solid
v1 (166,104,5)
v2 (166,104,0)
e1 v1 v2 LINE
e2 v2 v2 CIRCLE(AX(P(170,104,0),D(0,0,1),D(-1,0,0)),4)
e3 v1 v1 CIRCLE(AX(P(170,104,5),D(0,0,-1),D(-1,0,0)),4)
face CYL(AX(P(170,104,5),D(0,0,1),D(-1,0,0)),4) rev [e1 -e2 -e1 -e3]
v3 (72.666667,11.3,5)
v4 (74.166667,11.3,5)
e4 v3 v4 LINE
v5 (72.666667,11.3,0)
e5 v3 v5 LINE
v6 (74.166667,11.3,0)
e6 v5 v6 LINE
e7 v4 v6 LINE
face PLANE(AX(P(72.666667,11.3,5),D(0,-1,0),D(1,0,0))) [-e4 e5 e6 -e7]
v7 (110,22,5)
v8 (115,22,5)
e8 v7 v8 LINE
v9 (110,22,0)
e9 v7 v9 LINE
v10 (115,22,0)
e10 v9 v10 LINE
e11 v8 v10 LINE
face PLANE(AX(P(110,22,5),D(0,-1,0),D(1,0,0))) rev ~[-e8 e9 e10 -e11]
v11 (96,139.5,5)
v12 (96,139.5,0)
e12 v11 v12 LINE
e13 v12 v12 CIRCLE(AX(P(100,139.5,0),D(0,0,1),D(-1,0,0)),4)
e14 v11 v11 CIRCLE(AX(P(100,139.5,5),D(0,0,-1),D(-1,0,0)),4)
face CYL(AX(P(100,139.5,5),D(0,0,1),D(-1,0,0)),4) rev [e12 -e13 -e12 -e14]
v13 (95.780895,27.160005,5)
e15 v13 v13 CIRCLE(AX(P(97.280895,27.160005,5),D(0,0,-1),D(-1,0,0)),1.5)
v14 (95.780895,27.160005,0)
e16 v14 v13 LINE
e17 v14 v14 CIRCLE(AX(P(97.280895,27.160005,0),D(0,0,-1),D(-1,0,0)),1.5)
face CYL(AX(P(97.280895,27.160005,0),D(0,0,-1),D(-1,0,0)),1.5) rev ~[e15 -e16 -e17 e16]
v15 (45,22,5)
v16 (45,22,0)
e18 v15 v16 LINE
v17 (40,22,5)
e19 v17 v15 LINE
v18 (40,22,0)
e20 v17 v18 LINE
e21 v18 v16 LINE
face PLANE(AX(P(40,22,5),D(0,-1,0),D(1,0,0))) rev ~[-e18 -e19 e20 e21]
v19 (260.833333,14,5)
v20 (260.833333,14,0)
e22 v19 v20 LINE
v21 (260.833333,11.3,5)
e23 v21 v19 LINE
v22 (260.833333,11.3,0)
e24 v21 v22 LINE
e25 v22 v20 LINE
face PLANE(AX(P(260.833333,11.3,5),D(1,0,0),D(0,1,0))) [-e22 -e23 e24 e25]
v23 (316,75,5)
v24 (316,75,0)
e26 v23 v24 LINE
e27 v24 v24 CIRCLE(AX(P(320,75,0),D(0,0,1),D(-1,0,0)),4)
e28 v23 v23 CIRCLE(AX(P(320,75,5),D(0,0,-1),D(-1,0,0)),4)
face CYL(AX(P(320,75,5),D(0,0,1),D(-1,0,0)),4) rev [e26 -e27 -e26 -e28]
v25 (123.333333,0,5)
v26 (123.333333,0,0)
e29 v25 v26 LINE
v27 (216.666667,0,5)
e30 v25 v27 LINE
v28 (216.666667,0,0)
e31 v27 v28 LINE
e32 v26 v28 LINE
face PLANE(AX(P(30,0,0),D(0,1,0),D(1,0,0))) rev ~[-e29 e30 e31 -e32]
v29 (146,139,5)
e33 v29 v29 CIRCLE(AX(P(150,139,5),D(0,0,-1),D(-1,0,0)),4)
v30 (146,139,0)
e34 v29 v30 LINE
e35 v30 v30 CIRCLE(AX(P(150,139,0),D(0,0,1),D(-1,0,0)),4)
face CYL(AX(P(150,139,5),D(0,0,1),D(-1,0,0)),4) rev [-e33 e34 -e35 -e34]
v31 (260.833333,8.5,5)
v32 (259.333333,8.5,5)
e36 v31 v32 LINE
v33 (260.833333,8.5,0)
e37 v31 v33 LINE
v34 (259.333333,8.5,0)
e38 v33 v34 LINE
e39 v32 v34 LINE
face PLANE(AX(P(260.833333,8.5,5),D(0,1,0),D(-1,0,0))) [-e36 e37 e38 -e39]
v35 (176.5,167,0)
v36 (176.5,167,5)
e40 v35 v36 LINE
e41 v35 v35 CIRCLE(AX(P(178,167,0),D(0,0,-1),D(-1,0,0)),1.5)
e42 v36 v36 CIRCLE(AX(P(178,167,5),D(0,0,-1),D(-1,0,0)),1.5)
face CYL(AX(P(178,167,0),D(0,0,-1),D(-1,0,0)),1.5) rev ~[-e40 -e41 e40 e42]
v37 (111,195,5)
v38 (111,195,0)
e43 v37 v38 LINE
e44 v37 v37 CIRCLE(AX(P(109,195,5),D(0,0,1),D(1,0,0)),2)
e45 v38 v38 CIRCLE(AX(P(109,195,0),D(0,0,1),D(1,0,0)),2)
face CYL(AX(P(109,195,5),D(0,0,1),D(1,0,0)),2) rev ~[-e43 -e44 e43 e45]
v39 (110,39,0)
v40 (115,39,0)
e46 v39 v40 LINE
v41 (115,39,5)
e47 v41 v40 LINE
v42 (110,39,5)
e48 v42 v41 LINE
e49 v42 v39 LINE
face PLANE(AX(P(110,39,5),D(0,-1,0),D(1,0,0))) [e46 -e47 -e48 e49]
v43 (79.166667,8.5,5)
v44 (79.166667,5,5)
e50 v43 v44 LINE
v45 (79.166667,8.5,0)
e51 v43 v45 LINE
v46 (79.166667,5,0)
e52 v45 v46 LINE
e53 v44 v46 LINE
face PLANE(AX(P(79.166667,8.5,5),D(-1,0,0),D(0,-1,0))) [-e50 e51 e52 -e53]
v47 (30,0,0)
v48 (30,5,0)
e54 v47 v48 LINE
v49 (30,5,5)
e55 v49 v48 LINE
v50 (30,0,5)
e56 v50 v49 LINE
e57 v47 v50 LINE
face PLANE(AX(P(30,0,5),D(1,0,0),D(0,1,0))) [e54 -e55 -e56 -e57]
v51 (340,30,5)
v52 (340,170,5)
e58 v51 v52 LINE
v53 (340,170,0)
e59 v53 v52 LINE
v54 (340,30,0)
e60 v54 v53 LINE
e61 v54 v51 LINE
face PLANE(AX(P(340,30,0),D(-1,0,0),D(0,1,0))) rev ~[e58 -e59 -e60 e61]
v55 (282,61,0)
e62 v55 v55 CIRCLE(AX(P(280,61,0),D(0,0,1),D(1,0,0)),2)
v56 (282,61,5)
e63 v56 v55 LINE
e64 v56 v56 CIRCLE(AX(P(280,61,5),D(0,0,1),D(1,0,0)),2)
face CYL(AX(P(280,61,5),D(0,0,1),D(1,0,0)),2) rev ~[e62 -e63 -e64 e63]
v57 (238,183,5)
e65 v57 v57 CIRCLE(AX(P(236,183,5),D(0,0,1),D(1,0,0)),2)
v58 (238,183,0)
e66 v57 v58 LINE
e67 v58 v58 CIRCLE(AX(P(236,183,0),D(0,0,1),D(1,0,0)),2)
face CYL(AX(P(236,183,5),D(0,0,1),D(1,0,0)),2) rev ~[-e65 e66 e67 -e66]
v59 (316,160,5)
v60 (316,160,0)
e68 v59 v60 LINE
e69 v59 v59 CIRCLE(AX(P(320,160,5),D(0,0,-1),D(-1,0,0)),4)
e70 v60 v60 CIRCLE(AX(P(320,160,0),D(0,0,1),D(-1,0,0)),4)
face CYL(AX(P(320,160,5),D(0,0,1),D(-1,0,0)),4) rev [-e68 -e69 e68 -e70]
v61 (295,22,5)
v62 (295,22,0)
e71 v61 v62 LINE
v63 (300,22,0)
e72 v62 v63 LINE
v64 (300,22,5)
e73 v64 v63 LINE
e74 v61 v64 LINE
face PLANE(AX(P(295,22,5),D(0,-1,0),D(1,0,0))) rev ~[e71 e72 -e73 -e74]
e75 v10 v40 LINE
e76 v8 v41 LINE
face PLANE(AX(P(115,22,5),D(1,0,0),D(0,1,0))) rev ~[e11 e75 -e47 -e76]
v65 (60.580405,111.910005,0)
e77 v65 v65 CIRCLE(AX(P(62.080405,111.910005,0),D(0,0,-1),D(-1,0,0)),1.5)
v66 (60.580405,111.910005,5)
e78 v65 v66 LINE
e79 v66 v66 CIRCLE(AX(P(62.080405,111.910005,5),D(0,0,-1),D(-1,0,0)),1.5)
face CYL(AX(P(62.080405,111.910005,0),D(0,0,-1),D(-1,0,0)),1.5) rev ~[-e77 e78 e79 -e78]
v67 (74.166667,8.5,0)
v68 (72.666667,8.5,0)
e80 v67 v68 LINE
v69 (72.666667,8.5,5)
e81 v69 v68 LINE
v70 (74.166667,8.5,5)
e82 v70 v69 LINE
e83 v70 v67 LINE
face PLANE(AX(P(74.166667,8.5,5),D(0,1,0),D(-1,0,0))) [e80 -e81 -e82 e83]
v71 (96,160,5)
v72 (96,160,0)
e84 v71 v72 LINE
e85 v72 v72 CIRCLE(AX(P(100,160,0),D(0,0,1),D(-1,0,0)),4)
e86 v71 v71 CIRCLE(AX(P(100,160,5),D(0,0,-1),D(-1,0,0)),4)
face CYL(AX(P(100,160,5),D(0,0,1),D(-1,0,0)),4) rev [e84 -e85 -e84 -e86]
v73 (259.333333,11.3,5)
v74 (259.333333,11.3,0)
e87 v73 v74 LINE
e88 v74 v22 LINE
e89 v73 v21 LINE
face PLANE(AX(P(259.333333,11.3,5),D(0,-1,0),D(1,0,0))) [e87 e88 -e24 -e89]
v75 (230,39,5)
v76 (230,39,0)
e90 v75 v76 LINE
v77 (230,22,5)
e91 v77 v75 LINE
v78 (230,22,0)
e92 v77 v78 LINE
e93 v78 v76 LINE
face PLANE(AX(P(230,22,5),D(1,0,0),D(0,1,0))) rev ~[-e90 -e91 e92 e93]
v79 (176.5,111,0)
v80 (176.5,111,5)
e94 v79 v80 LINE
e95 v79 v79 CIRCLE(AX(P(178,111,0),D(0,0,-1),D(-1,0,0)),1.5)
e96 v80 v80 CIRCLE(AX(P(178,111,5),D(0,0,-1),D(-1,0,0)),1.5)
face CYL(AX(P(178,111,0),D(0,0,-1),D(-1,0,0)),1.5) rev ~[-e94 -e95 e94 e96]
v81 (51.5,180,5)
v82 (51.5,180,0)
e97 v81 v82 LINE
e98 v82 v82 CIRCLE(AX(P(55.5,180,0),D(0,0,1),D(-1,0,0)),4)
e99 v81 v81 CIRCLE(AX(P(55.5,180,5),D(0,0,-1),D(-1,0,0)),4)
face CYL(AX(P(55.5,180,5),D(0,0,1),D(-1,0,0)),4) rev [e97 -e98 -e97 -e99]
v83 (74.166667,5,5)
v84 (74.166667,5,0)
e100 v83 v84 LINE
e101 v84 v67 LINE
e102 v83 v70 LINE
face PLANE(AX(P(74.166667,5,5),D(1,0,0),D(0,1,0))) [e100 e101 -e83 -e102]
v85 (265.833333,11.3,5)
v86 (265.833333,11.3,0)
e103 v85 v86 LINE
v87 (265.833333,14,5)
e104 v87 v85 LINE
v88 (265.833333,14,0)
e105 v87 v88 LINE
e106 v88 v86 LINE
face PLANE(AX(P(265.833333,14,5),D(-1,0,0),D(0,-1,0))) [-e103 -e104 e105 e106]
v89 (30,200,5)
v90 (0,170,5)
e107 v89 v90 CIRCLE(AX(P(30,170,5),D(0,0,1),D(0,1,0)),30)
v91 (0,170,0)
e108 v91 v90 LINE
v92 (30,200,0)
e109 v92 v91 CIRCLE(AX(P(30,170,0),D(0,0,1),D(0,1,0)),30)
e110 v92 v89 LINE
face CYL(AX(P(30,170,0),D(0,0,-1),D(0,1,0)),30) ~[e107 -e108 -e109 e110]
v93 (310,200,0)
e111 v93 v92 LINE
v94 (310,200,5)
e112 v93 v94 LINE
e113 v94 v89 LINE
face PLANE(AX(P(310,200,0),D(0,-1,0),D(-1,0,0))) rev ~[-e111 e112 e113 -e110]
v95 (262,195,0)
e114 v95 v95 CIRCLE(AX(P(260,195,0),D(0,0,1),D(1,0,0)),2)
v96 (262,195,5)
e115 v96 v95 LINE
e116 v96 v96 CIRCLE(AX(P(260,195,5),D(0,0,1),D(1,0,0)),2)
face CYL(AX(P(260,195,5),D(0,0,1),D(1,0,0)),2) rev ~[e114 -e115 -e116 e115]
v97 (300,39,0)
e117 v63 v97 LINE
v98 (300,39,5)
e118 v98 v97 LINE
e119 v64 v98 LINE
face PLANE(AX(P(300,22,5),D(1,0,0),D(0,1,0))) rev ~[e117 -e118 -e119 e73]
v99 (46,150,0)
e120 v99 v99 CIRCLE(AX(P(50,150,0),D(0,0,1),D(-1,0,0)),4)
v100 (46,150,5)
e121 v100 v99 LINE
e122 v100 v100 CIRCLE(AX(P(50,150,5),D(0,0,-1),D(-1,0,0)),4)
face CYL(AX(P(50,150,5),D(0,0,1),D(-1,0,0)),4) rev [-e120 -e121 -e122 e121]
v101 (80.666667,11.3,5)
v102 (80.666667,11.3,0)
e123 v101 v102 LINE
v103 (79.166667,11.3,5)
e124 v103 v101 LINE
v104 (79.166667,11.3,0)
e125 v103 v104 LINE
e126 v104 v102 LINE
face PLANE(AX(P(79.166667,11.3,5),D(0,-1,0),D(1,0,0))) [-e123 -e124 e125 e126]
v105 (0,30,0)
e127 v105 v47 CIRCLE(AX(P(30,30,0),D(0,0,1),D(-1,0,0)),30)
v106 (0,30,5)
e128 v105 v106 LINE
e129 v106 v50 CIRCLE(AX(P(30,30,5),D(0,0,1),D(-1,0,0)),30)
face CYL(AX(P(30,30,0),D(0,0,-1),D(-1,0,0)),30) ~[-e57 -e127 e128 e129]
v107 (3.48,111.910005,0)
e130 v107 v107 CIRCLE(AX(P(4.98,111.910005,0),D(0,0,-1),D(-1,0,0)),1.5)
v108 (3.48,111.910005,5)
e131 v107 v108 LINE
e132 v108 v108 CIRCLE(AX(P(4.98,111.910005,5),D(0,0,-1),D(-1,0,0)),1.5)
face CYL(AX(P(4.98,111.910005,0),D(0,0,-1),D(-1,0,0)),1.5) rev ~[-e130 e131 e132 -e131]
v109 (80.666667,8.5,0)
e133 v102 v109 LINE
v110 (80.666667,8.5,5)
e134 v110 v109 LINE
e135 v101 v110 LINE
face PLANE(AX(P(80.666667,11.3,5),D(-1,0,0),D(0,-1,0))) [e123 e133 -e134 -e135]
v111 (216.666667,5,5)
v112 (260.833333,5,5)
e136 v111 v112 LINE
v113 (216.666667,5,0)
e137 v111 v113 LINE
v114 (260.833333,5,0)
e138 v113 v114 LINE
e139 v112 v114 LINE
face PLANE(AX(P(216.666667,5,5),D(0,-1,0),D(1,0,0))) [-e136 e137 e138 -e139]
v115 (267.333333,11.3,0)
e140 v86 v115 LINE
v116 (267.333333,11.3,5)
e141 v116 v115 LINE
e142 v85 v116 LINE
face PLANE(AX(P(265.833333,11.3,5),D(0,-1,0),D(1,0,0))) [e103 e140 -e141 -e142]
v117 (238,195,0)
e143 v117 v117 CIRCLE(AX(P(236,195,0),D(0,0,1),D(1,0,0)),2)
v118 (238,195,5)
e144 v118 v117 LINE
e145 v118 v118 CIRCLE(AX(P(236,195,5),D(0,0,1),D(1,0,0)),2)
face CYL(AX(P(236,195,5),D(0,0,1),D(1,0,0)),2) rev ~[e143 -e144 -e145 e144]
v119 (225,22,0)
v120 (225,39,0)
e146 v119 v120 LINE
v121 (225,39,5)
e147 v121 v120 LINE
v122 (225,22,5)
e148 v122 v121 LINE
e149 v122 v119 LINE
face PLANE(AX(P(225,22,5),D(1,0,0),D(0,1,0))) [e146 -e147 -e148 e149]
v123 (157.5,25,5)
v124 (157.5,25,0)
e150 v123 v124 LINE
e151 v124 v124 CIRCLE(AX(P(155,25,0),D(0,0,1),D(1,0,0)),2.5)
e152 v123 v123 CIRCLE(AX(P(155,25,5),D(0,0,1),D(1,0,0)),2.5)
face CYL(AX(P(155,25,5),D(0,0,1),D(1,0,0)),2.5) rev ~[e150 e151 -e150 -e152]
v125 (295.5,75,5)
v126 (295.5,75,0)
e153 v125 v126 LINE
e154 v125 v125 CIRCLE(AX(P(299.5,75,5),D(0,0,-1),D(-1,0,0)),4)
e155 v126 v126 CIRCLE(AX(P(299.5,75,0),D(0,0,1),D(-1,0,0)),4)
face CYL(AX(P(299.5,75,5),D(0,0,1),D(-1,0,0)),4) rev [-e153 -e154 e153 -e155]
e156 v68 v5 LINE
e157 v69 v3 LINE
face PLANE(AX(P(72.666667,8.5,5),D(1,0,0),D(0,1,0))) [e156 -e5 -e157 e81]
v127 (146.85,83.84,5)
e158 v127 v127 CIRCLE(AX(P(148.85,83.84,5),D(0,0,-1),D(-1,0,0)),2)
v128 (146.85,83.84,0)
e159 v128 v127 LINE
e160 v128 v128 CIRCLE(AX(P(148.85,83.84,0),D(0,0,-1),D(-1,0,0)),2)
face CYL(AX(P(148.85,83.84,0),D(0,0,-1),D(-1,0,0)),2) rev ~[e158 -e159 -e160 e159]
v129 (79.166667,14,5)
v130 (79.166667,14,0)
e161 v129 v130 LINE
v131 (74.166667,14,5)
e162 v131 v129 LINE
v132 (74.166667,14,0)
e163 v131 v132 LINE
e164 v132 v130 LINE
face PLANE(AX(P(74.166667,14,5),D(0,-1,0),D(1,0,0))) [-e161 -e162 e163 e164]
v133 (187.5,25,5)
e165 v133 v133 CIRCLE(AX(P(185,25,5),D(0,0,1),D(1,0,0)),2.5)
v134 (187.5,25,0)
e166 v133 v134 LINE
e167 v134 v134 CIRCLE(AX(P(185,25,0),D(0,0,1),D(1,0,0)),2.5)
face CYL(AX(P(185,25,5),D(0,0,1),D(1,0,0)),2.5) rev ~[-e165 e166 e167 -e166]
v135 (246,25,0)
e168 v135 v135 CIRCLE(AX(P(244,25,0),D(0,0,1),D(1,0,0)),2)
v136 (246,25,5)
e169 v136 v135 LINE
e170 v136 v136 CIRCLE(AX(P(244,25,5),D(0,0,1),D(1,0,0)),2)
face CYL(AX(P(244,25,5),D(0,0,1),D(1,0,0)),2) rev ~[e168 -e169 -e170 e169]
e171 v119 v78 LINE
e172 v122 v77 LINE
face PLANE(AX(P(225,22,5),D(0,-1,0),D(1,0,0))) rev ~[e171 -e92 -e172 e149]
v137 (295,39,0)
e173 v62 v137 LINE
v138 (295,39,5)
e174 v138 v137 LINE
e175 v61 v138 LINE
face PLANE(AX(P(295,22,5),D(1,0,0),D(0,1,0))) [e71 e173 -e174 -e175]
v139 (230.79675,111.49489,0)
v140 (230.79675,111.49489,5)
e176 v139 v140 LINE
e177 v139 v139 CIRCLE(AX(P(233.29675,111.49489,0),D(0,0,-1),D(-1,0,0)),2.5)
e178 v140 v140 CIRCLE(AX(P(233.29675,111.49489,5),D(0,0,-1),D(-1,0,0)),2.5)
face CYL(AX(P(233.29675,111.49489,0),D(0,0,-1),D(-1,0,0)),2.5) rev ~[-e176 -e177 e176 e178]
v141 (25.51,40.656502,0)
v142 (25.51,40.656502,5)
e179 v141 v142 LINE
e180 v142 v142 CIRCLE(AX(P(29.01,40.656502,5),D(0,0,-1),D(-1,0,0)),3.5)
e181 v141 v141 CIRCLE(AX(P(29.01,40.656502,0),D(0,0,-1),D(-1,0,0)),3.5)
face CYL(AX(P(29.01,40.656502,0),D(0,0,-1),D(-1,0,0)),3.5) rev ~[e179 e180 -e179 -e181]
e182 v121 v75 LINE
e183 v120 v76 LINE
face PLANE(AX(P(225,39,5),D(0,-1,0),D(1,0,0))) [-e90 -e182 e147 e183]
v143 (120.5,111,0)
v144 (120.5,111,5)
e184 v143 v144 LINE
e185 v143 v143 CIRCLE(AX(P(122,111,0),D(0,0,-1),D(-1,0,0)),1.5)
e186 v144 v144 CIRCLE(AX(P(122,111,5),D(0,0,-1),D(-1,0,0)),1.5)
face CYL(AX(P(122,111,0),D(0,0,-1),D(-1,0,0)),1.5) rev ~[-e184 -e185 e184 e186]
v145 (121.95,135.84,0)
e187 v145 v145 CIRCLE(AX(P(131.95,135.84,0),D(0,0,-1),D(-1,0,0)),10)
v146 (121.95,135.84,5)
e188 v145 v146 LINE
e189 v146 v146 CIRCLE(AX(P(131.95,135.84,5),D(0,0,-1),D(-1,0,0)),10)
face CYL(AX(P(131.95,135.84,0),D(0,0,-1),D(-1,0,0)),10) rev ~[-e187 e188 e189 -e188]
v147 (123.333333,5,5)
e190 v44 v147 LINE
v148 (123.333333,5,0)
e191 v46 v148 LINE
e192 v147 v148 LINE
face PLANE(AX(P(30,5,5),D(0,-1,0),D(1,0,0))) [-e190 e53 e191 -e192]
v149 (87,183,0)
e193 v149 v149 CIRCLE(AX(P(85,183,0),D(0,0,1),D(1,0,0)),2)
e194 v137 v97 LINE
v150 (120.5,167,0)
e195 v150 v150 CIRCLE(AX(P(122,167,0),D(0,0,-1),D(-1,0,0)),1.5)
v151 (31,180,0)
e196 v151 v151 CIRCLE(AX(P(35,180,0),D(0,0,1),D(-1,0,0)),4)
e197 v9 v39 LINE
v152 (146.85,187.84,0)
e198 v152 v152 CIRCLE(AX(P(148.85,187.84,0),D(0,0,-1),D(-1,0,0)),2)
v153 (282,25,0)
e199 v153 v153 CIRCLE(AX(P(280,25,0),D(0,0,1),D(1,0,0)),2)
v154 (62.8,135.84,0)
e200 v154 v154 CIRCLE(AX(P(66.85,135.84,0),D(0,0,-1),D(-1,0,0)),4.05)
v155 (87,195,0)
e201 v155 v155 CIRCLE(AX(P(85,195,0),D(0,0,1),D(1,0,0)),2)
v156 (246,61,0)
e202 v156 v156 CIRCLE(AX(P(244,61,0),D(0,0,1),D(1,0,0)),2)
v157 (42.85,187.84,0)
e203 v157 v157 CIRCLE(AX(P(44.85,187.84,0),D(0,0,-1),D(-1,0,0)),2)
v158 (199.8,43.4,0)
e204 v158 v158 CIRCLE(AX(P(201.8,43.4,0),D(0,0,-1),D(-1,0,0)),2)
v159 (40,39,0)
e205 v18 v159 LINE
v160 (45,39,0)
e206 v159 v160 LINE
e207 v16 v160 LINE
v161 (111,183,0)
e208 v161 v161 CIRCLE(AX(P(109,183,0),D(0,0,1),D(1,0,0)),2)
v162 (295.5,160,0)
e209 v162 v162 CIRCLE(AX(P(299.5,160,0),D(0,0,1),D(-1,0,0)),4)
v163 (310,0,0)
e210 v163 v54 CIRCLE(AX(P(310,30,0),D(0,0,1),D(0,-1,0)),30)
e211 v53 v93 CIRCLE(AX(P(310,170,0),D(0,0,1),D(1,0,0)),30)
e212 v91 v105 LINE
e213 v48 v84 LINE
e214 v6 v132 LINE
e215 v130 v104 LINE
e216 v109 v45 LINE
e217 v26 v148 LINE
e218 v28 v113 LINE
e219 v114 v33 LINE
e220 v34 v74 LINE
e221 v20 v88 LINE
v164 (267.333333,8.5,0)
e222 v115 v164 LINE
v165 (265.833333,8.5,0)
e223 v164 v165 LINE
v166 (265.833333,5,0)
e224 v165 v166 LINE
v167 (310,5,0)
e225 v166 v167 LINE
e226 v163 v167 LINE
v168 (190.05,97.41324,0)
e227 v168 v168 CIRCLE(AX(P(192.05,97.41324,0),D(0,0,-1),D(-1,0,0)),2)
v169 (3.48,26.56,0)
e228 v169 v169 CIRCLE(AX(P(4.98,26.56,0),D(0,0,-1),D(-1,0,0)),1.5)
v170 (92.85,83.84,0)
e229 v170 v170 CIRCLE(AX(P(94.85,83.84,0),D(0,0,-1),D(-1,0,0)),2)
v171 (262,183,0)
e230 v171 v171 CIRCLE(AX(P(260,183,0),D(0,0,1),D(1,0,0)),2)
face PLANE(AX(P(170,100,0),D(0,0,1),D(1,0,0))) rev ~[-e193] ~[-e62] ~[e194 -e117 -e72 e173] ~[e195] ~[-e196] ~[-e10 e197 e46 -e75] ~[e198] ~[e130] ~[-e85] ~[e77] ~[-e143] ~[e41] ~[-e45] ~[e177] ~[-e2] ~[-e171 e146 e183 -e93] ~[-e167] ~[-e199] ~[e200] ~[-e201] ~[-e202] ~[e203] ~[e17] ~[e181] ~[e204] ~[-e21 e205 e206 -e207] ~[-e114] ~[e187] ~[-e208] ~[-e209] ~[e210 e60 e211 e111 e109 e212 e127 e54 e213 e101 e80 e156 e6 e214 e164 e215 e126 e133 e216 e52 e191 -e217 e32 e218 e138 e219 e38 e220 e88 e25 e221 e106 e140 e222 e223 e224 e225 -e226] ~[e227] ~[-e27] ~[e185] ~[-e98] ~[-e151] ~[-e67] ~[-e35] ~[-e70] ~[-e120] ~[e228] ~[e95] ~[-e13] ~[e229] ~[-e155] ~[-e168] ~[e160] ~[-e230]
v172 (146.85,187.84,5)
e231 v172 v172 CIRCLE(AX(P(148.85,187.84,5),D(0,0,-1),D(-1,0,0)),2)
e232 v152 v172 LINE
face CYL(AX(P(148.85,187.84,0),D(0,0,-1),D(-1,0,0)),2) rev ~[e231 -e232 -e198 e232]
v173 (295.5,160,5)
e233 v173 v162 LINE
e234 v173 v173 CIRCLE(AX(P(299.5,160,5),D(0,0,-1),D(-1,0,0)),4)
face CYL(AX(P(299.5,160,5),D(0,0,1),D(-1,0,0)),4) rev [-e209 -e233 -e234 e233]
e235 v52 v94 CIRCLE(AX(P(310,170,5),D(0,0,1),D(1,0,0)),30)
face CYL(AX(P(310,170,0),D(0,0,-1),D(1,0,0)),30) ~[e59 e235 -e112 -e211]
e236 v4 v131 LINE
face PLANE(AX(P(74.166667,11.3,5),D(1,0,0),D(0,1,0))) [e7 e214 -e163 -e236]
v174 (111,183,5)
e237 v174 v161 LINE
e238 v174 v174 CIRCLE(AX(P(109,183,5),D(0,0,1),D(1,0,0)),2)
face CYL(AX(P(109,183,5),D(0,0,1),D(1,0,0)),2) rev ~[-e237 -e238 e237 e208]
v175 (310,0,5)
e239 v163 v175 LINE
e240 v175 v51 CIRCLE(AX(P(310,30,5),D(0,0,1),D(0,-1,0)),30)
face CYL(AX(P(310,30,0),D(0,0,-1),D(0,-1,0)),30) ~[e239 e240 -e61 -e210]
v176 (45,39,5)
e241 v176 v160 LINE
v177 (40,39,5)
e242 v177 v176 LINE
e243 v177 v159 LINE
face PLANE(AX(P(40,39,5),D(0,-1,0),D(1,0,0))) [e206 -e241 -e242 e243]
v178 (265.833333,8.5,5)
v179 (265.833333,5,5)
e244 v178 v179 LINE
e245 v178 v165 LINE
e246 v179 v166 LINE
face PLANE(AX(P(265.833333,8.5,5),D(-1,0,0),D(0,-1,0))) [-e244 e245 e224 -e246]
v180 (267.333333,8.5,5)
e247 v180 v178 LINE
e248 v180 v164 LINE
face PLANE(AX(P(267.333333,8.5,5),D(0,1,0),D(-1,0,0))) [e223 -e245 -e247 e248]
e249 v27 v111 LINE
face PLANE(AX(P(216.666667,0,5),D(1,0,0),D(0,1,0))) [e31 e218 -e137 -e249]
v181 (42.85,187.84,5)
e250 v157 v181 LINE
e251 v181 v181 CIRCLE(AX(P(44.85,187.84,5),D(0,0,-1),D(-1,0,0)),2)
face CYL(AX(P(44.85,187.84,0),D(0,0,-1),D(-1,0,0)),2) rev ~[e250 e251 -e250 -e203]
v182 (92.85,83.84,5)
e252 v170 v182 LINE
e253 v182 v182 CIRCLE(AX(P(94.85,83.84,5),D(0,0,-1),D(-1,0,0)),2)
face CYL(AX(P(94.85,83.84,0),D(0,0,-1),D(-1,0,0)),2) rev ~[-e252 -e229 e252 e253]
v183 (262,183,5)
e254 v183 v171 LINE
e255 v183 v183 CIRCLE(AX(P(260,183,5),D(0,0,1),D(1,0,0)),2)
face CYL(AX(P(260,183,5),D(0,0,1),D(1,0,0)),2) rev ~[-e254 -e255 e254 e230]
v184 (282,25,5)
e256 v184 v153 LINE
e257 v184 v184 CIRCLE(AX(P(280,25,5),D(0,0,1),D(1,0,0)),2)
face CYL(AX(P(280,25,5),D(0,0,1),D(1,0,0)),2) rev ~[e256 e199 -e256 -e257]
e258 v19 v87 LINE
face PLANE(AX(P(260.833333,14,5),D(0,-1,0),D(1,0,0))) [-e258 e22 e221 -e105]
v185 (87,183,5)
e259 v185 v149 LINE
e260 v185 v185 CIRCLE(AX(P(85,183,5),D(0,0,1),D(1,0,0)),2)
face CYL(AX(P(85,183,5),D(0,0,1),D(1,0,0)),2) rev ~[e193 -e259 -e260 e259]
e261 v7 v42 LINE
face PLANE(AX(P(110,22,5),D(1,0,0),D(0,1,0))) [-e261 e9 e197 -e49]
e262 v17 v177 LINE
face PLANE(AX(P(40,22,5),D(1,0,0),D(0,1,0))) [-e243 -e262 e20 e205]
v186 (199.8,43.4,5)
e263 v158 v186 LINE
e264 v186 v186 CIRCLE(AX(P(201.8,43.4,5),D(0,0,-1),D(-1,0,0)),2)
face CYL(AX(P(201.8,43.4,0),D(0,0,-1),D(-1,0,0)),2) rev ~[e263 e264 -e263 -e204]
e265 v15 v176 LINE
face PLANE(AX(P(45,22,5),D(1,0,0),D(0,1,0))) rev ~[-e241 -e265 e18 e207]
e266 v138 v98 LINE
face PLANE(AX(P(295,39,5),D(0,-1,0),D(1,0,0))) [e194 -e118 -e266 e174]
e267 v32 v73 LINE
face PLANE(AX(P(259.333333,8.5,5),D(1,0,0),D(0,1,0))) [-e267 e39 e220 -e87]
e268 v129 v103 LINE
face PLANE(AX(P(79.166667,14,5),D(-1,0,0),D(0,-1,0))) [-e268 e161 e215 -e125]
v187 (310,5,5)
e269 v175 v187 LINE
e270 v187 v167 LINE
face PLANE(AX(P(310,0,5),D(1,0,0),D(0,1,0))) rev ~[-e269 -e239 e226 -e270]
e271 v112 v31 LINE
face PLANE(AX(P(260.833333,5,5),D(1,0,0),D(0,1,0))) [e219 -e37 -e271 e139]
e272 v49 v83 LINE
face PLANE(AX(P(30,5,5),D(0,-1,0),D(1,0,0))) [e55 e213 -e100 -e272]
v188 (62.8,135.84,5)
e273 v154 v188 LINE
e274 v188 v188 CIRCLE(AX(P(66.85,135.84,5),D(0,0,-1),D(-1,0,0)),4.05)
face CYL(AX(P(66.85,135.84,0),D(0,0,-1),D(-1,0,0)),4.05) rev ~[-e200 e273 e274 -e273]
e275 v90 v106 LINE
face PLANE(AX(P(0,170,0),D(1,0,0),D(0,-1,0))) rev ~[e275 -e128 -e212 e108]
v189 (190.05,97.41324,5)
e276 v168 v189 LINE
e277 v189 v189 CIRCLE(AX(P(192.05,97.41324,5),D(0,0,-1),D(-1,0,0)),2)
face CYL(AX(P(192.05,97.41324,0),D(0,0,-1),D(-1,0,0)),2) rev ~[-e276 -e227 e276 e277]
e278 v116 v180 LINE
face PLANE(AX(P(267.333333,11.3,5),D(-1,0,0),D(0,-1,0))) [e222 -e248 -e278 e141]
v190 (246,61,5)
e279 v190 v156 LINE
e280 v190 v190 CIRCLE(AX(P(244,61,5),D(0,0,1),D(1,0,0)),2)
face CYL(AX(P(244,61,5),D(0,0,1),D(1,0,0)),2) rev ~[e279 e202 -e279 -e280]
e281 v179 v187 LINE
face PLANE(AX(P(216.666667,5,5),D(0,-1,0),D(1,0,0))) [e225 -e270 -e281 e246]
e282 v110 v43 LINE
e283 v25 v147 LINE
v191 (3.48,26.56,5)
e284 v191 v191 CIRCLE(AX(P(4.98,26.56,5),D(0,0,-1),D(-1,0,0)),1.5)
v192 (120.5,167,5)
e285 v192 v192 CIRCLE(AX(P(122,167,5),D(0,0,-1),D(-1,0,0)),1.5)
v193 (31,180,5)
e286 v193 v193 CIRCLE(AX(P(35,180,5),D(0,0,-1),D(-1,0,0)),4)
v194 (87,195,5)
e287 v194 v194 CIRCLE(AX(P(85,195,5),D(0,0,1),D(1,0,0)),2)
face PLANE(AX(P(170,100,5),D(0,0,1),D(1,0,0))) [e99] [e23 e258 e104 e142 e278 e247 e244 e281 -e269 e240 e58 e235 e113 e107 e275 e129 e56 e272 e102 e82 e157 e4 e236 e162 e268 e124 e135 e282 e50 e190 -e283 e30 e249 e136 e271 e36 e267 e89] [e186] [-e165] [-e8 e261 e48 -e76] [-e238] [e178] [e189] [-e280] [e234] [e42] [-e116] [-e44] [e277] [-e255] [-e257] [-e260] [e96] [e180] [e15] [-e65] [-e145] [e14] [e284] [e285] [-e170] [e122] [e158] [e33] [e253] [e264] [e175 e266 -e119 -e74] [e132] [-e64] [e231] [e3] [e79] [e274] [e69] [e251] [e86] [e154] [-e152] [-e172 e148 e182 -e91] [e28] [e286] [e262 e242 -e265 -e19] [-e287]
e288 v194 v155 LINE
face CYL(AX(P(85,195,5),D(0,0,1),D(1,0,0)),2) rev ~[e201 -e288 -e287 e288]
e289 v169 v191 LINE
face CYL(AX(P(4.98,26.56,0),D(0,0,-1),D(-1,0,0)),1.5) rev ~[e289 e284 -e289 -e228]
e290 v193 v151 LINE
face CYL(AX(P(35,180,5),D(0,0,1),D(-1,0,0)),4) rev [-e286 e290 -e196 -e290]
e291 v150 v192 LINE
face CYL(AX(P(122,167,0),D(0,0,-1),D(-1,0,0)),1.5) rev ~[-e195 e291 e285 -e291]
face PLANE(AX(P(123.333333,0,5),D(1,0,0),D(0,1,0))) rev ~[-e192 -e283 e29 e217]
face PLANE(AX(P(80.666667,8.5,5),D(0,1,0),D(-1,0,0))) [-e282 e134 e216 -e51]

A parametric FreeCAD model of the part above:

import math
import FreeCAD as App
import Part
import Sketcher
Q = App.Units.Quantity


def add_polygon(sketch, points):
    """Adds a closed chain of lines whose ends are joined by coincident constraints."""
    first, n = sketch.GeometryCount, len(points)
    for a, b in zip(points, points[1:] + points[:1]):
        sketch.addGeometry(Part.LineSegment(App.Vector(*a, 0), App.Vector(*b, 0)), False)
    for i in range(n):
        sketch.addConstraint(Sketcher.Constraint("Coincident", first + i, 2, first + (i + 1) % n, 1))

doc = App.newDocument("Part")
body = doc.addObject("PartDesign::Body", "Body")

sketch1 = doc.addObject("Sketcher::SketchObject", "Sketch")
body.addObject(sketch1)
sketch1.AttachmentSupport = (doc.XY_Plane, [""])
sketch1.MapMode = "FlatFace"
sketch1.addGeometry(Part.LineSegment(App.Vector(30, 0, 0), App.Vector(310, 0, 0)), False)
sketch1.addGeometry(Part.ArcOfCircle(Part.Circle(App.Vector(310, 30, 0), App.Vector(0, 0, 1), 30), math.radians(-90), math.radians(0)), False)
sketch1.addGeometry(Part.LineSegment(App.Vector(340, 30, 0), App.Vector(340, 170, 0)), False)
sketch1.addGeometry(Part.ArcOfCircle(Part.Circle(App.Vector(310, 170, 0), App.Vector(0, 0, 1), 30), math.radians(0), math.radians(90)), False)
sketch1.addGeometry(Part.LineSegment(App.Vector(310, 200, 0), App.Vector(30, 200, 0)), False)
sketch1.addGeometry(Part.ArcOfCircle(Part.Circle(App.Vector(30, 170, 0), App.Vector(0, 0, 1), 30), math.radians(90), math.radians(180)), False)
sketch1.addGeometry(Part.LineSegment(App.Vector(0, 170, 0), App.Vector(0, 30, 0)), False)
sketch1.addGeometry(Part.ArcOfCircle(Part.Circle(App.Vector(30, 30, 0), App.Vector(0, 0, 1), 30), math.radians(180), math.radians(270)), False)
sketch1.addConstraint(Sketcher.Constraint("Tangent", 0, 2, 1, 1))
sketch1.addConstraint(Sketcher.Constraint("Tangent", 1, 2, 2, 1))
sketch1.addConstraint(Sketcher.Constraint("Tangent", 2, 2, 3, 1))
sketch1.addConstraint(Sketcher.Constraint("Tangent", 3, 2, 4, 1))
sketch1.addConstraint(Sketcher.Constraint("Tangent", 4, 2, 5, 1))
sketch1.addConstraint(Sketcher.Constraint("Tangent", 5, 2, 6, 1))
sketch1.addConstraint(Sketcher.Constraint("Tangent", 6, 2, 7, 1))
sketch1.addConstraint(Sketcher.Constraint("Tangent", 7, 2, 0, 1))
sketch1.addConstraint(Sketcher.Constraint("Horizontal", 0))
sketch1.addConstraint(Sketcher.Constraint("Vertical", 2))
sketch1.addConstraint(Sketcher.Constraint("Horizontal", 4))
sketch1.addConstraint(Sketcher.Constraint("Vertical", 6))
sketch1.addConstraint(Sketcher.Constraint("Equal", 1, 3))
sketch1.addConstraint(Sketcher.Constraint("Equal", 3, 5))
sketch1.addConstraint(Sketcher.Constraint("Equal", 5, 7))
sketch1.addConstraint(Sketcher.Constraint("PointOnObject", 0, 2, -1))
sketch1.addConstraint(Sketcher.Constraint("PointOnObject", 5, 2, -2))
sketch1.addConstraint(Sketcher.Constraint("Radius", 1, Q("30 mm")))
sketch1.addConstraint(Sketcher.Constraint("DistanceX", 0, 1, 0, 2, Q("280 mm")))
sketch1.addConstraint(Sketcher.Constraint("DistanceY", 2, 1, 2, 2, Q("140 mm")))
pad1 = doc.addObject("PartDesign::Pad", "Pad")
body.addObject(pad1)
pad1.Profile = sketch1
pad1.Length = 5

sketch2 = doc.addObject("Sketcher::SketchObject", "Sketch001")
body.addObject(sketch2)
sketch2.AttachmentSupport = (doc.XY_Plane, [""])
sketch2.MapMode = "FlatFace"
sketch2.AttachmentOffset = App.Placement(App.Vector(0, 0, 5), App.Rotation())
sketch2.addGeometry(Part.Circle(App.Vector(55.5, 180, 0), App.Vector(0, 0, 1), 4), False)
sketch2.addGeometry(Part.Circle(App.Vector(35, 180, 0), App.Vector(0, 0, 1), 4), False)
sketch2.addGeometry(Part.Circle(App.Vector(100, 160, 0), App.Vector(0, 0, 1), 4), False)
sketch2.addGeometry(Part.Circle(App.Vector(100, 139.5, 0), App.Vector(0, 0, 1), 4), False)
sketch2.addGeometry(Part.Circle(App.Vector(299.5, 160, 0), App.Vector(0, 0, 1), 4), False)
sketch2.addGeometry(Part.Circle(App.Vector(320, 160, 0), App.Vector(0, 0, 1), 4), False)
sketch2.addGeometry(Part.Circle(App.Vector(320, 75, 0), App.Vector(0, 0, 1), 4), False)
sketch2.addGeometry(Part.Circle(App.Vector(299.5, 75, 0), App.Vector(0, 0, 1), 4), False)
sketch2.addGeometry(Part.Circle(App.Vector(150, 139, 0), App.Vector(0, 0, 1), 4), False)
sketch2.addGeometry(Part.Circle(App.Vector(170, 104, 0), App.Vector(0, 0, 1), 4), False)
sketch2.addGeometry(Part.Circle(App.Vector(50, 150, 0), App.Vector(0, 0, 1), 4), False)
sketch2.addConstraint(Sketcher.Constraint("Equal", 0, 1))
sketch2.addConstraint(Sketcher.Constraint("Equal", 1, 2))
sketch2.addConstraint(Sketcher.Constraint("Equal", 2, 3))
sketch2.addConstraint(Sketcher.Constraint("Equal", 3, 4))
sketch2.addConstraint(Sketcher.Constraint("Equal", 4, 5))
sketch2.addConstraint(Sketcher.Constraint("Equal", 5, 6))
sketch2.addConstraint(Sketcher.Constraint("Equal", 6, 7))
sketch2.addConstraint(Sketcher.Constraint("Equal", 7, 8))
sketch2.addConstraint(Sketcher.Constraint("Equal", 8, 9))
sketch2.addConstraint(Sketcher.Constraint("Equal", 9, 10))
sketch2.addConstraint(Sketcher.Constraint("Horizontal", 0, 3, 1, 3))
sketch2.addConstraint(Sketcher.Constraint("Horizontal", 2, 3, 4, 3))
sketch2.addConstraint(Sketcher.Constraint("Horizontal", 4, 3, 5, 3))
sketch2.addConstraint(Sketcher.Constraint("Horizontal", 6, 3, 7, 3))
sketch2.addConstraint(Sketcher.Constraint("Vertical", 2, 3, 3, 3))
sketch2.addConstraint(Sketcher.Constraint("Vertical", 5, 3, 6, 3))
sketch2.addConstraint(Sketcher.Constraint("Vertical", 4, 3, 7, 3))
sketch2.addConstraint(Sketcher.Constraint("Diameter", 0, Q("8 mm")))
sketch2.addConstraint(Sketcher.Constraint("DistanceY", -1, 1, 0, 3, Q("180 mm")))
sketch2.addConstraint(Sketcher.Constraint("DistanceX", -1, 1, 1, 3, Q("35 mm")))
sketch2.addConstraint(Sketcher.Constraint("DistanceX", -1, 1, 2, 3, Q("100 mm")))
sketch2.addConstraint(Sketcher.Constraint("DistanceY", -1, 1, 2, 3, Q("160 mm")))
sketch2.addConstraint(Sketcher.Constraint("DistanceX", -1, 1, 5, 3, Q("320 mm")))
sketch2.addConstraint(Sketcher.Constraint("DistanceY", -1, 1, 6, 3, Q("75 mm")))
sketch2.addConstraint(Sketcher.Constraint("DistanceX", -1, 1, 8, 3, Q("150 mm")))
sketch2.addConstraint(Sketcher.Constraint("DistanceY", -1, 1, 8, 3, Q("139 mm")))
sketch2.addConstraint(Sketcher.Constraint("DistanceX", -1, 1, 9, 3, Q("170 mm")))
sketch2.addConstraint(Sketcher.Constraint("DistanceY", -1, 1, 9, 3, Q("104 mm")))
sketch2.addConstraint(Sketcher.Constraint("DistanceX", -1, 1, 10, 3, Q("50 mm")))
sketch2.addConstraint(Sketcher.Constraint("DistanceY", -1, 1, 10, 3, Q("150 mm")))
sketch2.addConstraint(Sketcher.Constraint("DistanceX", 0, 3, 4, 3, Q("244 mm")))
sketch2.addConstraint(Sketcher.Constraint("DistanceX", -1, 1, 0, 3, Q("55.5 mm")))
sketch2.addConstraint(Sketcher.Constraint("DistanceY", -1, 1, 3, 3, Q("139.5 mm")))
pocket1 = doc.addObject("PartDesign::Pocket", "Pocket")
body.addObject(pocket1)
pocket1.Profile = sketch2
pocket1.Length = 10

sketch3 = doc.addObject("Sketcher::SketchObject", "Sketch002")
body.addObject(sketch3)
sketch3.AttachmentSupport = (doc.XY_Plane, [""])
sketch3.MapMode = "FlatFace"
sketch3.addGeometry(Part.Circle(App.Vector(148.8, 83.8, 0), App.Vector(0, 0, 1), 2), False)
sketch3.addGeometry(Part.Circle(App.Vector(94.8, 83.8, 0), App.Vector(0, 0, 1), 2), False)
sketch3.addGeometry(Part.Circle(App.Vector(44.9, 187.8, 0), App.Vector(0, 0, 1), 2), False)
sketch3.addGeometry(Part.Circle(App.Vector(148.8, 187.8, 0), App.Vector(0, 0, 1), 2), False)
sketch3.addGeometry(Part.Circle(App.Vector(131.9, 135.8, 0), App.Vector(0, 0, 1), 10), False)
sketch3.addGeometry(Part.Circle(App.Vector(66.8, 135.8, 0), App.Vector(0, 0, 1), 4), False)
sketch3.addConstraint(Sketcher.Constraint("Equal", 0, 1))
sketch3.addConstraint(Sketcher.Constraint("Equal", 1, 2))
sketch3.addConstraint(Sketcher.Constraint("Equal", 2, 3))
sketch3.addConstraint(Sketcher.Constraint("Horizontal", 0, 3, 1, 3))
sketch3.addConstraint(Sketcher.Constraint("Horizontal", 2, 3, 3, 3))
sketch3.addConstraint(Sketcher.Constraint("Horizontal", 4, 3, 5, 3))
sketch3.addConstraint(Sketcher.Constraint("Vertical", 0, 3, 3, 3))
sketch3.addConstraint(Sketcher.Constraint("Diameter", 0, Q("4 mm")))
sketch3.addConstraint(Sketcher.Constraint("Diameter", 4, Q("20 mm")))
sketch3.addConstraint(Sketcher.Constraint("Diameter", 5, Q("8.1 mm")))
sketch3.addConstraint(Sketcher.Constraint("DistanceX", 1, 3, 0, 3, Q("54 mm")))
sketch3.addConstraint(Sketcher.Constraint("DistanceX", 2, 3, 1, 3, Q("50 mm")))
sketch3.addConstraint(Sketcher.Constraint("DistanceY", 1, 3, 2, 3, Q("104 mm")))
sketch3.addConstraint(Sketcher.Constraint("DistanceY", 0, 3, 4, 3, Q("52 mm")))
sketch3.addConstraint(Sketcher.Constraint("DistanceX", 2, 3, 5, 3, Q("22 mm")))
sketch3.addConstraint(Sketcher.Constraint("DistanceX", 4, 3, 0, 3, Q("16.9 mm")))
sketch3.addConstraint(Sketcher.Constraint("DistanceX", -1, 1, 0, 3, Q("148.85 mm")))
sketch3.addConstraint(Sketcher.Constraint("DistanceY", -1, 1, 0, 3, Q("83.84 mm")))
pocket2 = doc.addObject("PartDesign::Pocket", "Pocket001")
body.addObject(pocket2)
pocket2.Profile = sketch3
pocket2.Length = 10
pocket2.Reversed = True

sketch4 = doc.addObject("Sketcher::SketchObject", "Sketch003")
body.addObject(sketch4)
sketch4.AttachmentSupport = (doc.XY_Plane, [""])
sketch4.MapMode = "FlatFace"
sketch4.addGeometry(Part.Circle(App.Vector(178, 167, 0), App.Vector(0, 0, 1), 1.5), False)
sketch4.addGeometry(Part.Circle(App.Vector(122, 111, 0), App.Vector(0, 0, 1), 1.5), False)
sketch4.addGeometry(Part.Circle(App.Vector(122, 167, 0), App.Vector(0, 0, 1), 1.5), False)
sketch4.addGeometry(Part.Circle(App.Vector(178, 111, 0), App.Vector(0, 0, 1), 1.5), False)
sketch4.addConstraint(Sketcher.Constraint("Equal", 0, 1))
sketch4.addConstraint(Sketcher.Constraint("Equal", 1, 2))
sketch4.addConstraint(Sketcher.Constraint("Equal", 2, 3))
sketch4.addConstraint(Sketcher.Constraint("Horizontal", 0, 3, 2, 3))
sketch4.addConstraint(Sketcher.Constraint("Horizontal", 1, 3, 3, 3))
sketch4.addConstraint(Sketcher.Constraint("Vertical", 1, 3, 2, 3))
sketch4.addConstraint(Sketcher.Constraint("Vertical", 0, 3, 3, 3))
sketch4.addConstraint(Sketcher.Constraint("Diameter", 0, Q("3 mm")))
sketch4.addConstraint(Sketcher.Constraint("DistanceX", -1, 1, 0, 3, Q("178 mm")))
sketch4.addConstraint(Sketcher.Constraint("DistanceY", -1, 1, 0, 3, Q("167 mm")))
sketch4.addConstraint(Sketcher.Constraint("DistanceX", -1, 1, 1, 3, Q("122 mm")))
sketch4.addConstraint(Sketcher.Constraint("DistanceY", -1, 1, 1, 3, Q("111 mm")))
pocket3 = doc.addObject("PartDesign::Pocket", "Pocket002")
body.addObject(pocket3)
pocket3.Profile = sketch4
pocket3.Length = 10
pocket3.Reversed = True

sketch5 = doc.addObject("Sketcher::SketchObject", "Sketch004")
body.addObject(sketch5)
sketch5.AttachmentSupport = (doc.XY_Plane, [""])
sketch5.MapMode = "FlatFace"
sketch5.AttachmentOffset = App.Placement(App.Vector(0, 0, 5), App.Rotation())
sketch5.addGeometry(Part.Circle(App.Vector(244, 61, 0), App.Vector(0, 0, 1), 2), False)
sketch5.addGeometry(Part.Circle(App.Vector(280, 61, 0), App.Vector(0, 0, 1), 2), False)
sketch5.addGeometry(Part.Circle(App.Vector(244, 25, 0), App.Vector(0, 0, 1), 2), False)
sketch5.addGeometry(Part.Circle(App.Vector(280, 25, 0), App.Vector(0, 0, 1), 2), False)
sketch5.addConstraint(Sketcher.Constraint("Equal", 0, 1))
sketch5.addConstraint(Sketcher.Constraint("Equal", 1, 2))
sketch5.addConstraint(Sketcher.Constraint("Equal", 2, 3))
sketch5.addConstraint(Sketcher.Constraint("Horizontal", 0, 3, 1, 3))
sketch5.addConstraint(Sketcher.Constraint("Horizontal", 2, 3, 3, 3))
sketch5.addConstraint(Sketcher.Constraint("Vertical", 0, 3, 2, 3))
sketch5.addConstraint(Sketcher.Constraint("Vertical", 1, 3, 3, 3))
sketch5.addConstraint(Sketcher.Constraint("Diameter", 0, Q("4 mm")))
sketch5.addConstraint(Sketcher.Constraint("DistanceX", -1, 1, 0, 3, Q("244 mm")))
sketch5.addConstraint(Sketcher.Constraint("DistanceY", -1, 1, 0, 3, Q("61 mm")))
sketch5.addConstraint(Sketcher.Constraint("DistanceX", -1, 1, 1, 3, Q("280 mm")))
sketch5.addConstraint(Sketcher.Constraint("DistanceY", -1, 1, 2, 3, Q("25 mm")))
pocket4 = doc.addObject("PartDesign::Pocket", "Pocket003")
body.addObject(pocket4)
pocket4.Profile = sketch5
pocket4.Length = 10

sketch6 = doc.addObject("Sketcher::SketchObject", "Sketch005")
body.addObject(sketch6)
sketch6.AttachmentSupport = (doc.XY_Plane, [""])
sketch6.MapMode = "FlatFace"
sketch6.AttachmentOffset = App.Placement(App.Vector(0, 0, 5), App.Rotation())
sketch6.addGeometry(Part.Circle(App.Vector(236, 195, 0), App.Vector(0, 0, 1), 2), False)
sketch6.addGeometry(Part.Circle(App.Vector(236, 183, 0), App.Vector(0, 0, 1), 2), False)
sketch6.addGeometry(Part.Circle(App.Vector(260, 183, 0), App.Vector(0, 0, 1), 2), False)
sketch6.addGeometry(Part.Circle(App.Vector(260, 195, 0), App.Vector(0, 0, 1), 2), False)
sketch6.addGeometry(Part.Circle(App.Vector(85, 195, 0), App.Vector(0, 0, 1), 2), False)
sketch6.addGeometry(Part.Circle(App.Vector(85, 183, 0), App.Vector(0, 0, 1), 2), False)
sketch6.addGeometry(Part.Circle(App.Vector(109, 183, 0), App.Vector(0, 0, 1), 2), False)
sketch6.addGeometry(Part.Circle(App.Vector(109, 195, 0), App.Vector(0, 0, 1), 2), False)
sketch6.addConstraint(Sketcher.Constraint("Equal", 0, 1))
sketch6.addConstraint(Sketcher.Constraint("Equal", 1, 2))
sketch6.addConstraint(Sketcher.Constraint("Equal", 2, 3))
sketch6.addConstraint(Sketcher.Constraint("Equal", 3, 4))
sketch6.addConstraint(Sketcher.Constraint("Equal", 4, 5))
sketch6.addConstraint(Sketcher.Constraint("Equal", 5, 6))
sketch6.addConstraint(Sketcher.Constraint("Equal", 6, 7))
sketch6.addConstraint(Sketcher.Constraint("Horizontal", 1, 3, 2, 3))
sketch6.addConstraint(Sketcher.Constraint("Horizontal", 0, 3, 3, 3))
sketch6.addConstraint(Sketcher.Constraint("Horizontal", 3, 3, 4, 3))
sketch6.addConstraint(Sketcher.Constraint("Horizontal", 2, 3, 5, 3))
sketch6.addConstraint(Sketcher.Constraint("Horizontal", 5, 3, 6, 3))
sketch6.addConstraint(Sketcher.Constraint("Horizontal", 4, 3, 7, 3))
sketch6.addConstraint(Sketcher.Constraint("Vertical", 0, 3, 1, 3))
sketch6.addConstraint(Sketcher.Constraint("Vertical", 2, 3, 3, 3))
sketch6.addConstraint(Sketcher.Constraint("Vertical", 4, 3, 5, 3))
sketch6.addConstraint(Sketcher.Constraint("Vertical", 6, 3, 7, 3))
sketch6.addConstraint(Sketcher.Constraint("Diameter", 0, Q("4 mm")))
sketch6.addConstraint(Sketcher.Constraint("DistanceX", -1, 1, 0, 3, Q("236 mm")))
sketch6.addConstraint(Sketcher.Constraint("DistanceY", -1, 1, 0, 3, Q("195 mm")))
sketch6.addConstraint(Sketcher.Constraint("DistanceY", -1, 1, 1, 3, Q("183 mm")))
sketch6.addConstraint(Sketcher.Constraint("DistanceX", -1, 1, 2, 3, Q("260 mm")))
sketch6.addConstraint(Sketcher.Constraint("DistanceX", -1, 1, 4, 3, Q("85 mm")))
sketch6.addConstraint(Sketcher.Constraint("DistanceX", -1, 1, 6, 3, Q("109 mm")))
pocket5 = doc.addObject("PartDesign::Pocket", "Pocket004")
body.addObject(pocket5)
pocket5.Profile = sketch6
pocket5.Length = 10

sketch7 = doc.addObject("Sketcher::SketchObject", "Sketch006")
body.addObject(sketch7)
sketch7.AttachmentSupport = (doc.XY_Plane, [""])
sketch7.MapMode = "FlatFace"
sketch7.addGeometry(Part.Circle(App.Vector(29, 40.7, 0), App.Vector(0, 0, 1), 3.5), False)
sketch7.addGeometry(Part.Circle(App.Vector(62.1, 111.9, 0), App.Vector(0, 0, 1), 1.5), False)
sketch7.addGeometry(Part.Circle(App.Vector(5, 111.9, 0), App.Vector(0, 0, 1), 1.5), False)
sketch7.addGeometry(Part.Circle(App.Vector(97.3, 27.2, 0), App.Vector(0, 0, 1), 1.5), False)
sketch7.addGeometry(Part.Circle(App.Vector(5, 26.6, 0), App.Vector(0, 0, 1), 1.5), False)
sketch7.addGeometry(Part.Circle(App.Vector(233.3, 111.5, 0), App.Vector(0, 0, 1), 2.5), False)
sketch7.addGeometry(Part.Circle(App.Vector(201.8, 43.4, 0), App.Vector(0, 0, 1), 2), False)
sketch7.addGeometry(Part.Circle(App.Vector(192.1, 97.4, 0), App.Vector(0, 0, 1), 2), False)
sketch7.addConstraint(Sketcher.Constraint("Equal", 1, 2))
sketch7.addConstraint(Sketcher.Constraint("Equal", 2, 3))
sketch7.addConstraint(Sketcher.Constraint("Equal", 3, 4))
sketch7.addConstraint(Sketcher.Constraint("Equal", 6, 7))
sketch7.addConstraint(Sketcher.Constraint("Horizontal", 1, 3, 2, 3))
sketch7.addConstraint(Sketcher.Constraint("Vertical", 2, 3, 4, 3))
sketch7.addConstraint(Sketcher.Constraint("Diameter", 0, Q("7 mm")))
sketch7.addConstraint(Sketcher.Constraint("Diameter", 1, Q("3 mm")))
sketch7.addConstraint(Sketcher.Constraint("Diameter", 5, Q("5 mm")))
sketch7.addConstraint(Sketcher.Constraint("Diameter", 6, Q("4 mm")))
sketch7.addConstraint(Sketcher.Constraint("DistanceX", -1, 1, 6, 3, Q("201.8 mm")))
sketch7.addConstraint(Sketcher.Constraint("DistanceY", -1, 1, 6, 3, Q("43.4 mm")))
sketch7.addConstraint(Sketcher.Constraint("DistanceX", -1, 1, 0, 3, Q("29.01 mm")))
sketch7.addConstraint(Sketcher.Constraint("DistanceX", -1, 1, 2, 3, Q("4.98 mm")))
sketch7.addConstraint(Sketcher.Constraint("DistanceY", -1, 1, 4, 3, Q("26.56 mm")))
sketch7.addConstraint(Sketcher.Constraint("DistanceX", -1, 1, 7, 3, Q("192.05 mm")))
sketch7.addConstraint(Sketcher.Constraint("DistanceY", 3, 3, 1, 3, Q("84.75 mm")))
sketch7.addConstraint(Sketcher.Constraint("DistanceX", -1, 1, 5, 3, Q("233.29675 mm")))
sketch7.addConstraint(Sketcher.Constraint("DistanceY", -1, 1, 5, 3, Q("111.49489 mm")))
sketch7.addConstraint(Sketcher.Constraint("DistanceY", -1, 1, 7, 3, Q("97.41324 mm")))
sketch7.addConstraint(Sketcher.Constraint("DistanceX", 1, 3, 3, 3, Q("35.20049 mm")))
sketch7.addConstraint(Sketcher.Constraint("DistanceY", -1, 1, 0, 3, Q("40.656502 mm")))
sketch7.addConstraint(Sketcher.Constraint("DistanceX", -1, 1, 1, 3, Q("62.080405 mm")))
sketch7.addConstraint(Sketcher.Constraint("DistanceY", -1, 1, 1, 3, Q("111.910005 mm")))
pocket6 = doc.addObject("PartDesign::Pocket", "Pocket005")
body.addObject(pocket6)
pocket6.Profile = sketch7
pocket6.Length = 10
pocket6.Reversed = True

sketch8 = doc.addObject("Sketcher::SketchObject", "Sketch007")
body.addObject(sketch8)
sketch8.AttachmentSupport = (doc.XY_Plane, [""])
sketch8.MapMode = "FlatFace"
sketch8.AttachmentOffset = App.Placement(App.Vector(0, 0, 5), App.Rotation())
add_polygon(sketch8, [(30, 5), (30, 0), (123, 0), (123, 5)])
add_polygon(sketch8, [(217, 5), (217, 0), (310, 0), (310, 5)])
sketch8.addConstraint(Sketcher.Constraint("Vertical", 0))
sketch8.addConstraint(Sketcher.Constraint("Horizontal", 1))
sketch8.addConstraint(Sketcher.Constraint("Vertical", 2))
sketch8.addConstraint(Sketcher.Constraint("Horizontal", 3))
sketch8.addConstraint(Sketcher.Constraint("Vertical", 4))
sketch8.addConstraint(Sketcher.Constraint("Horizontal", 5))
sketch8.addConstraint(Sketcher.Constraint("Vertical", 6))
sketch8.addConstraint(Sketcher.Constraint("Horizontal", 7))
sketch8.addConstraint(Sketcher.Constraint("PointOnObject", 0, 2, -1))
sketch8.addConstraint(Sketcher.Constraint("PointOnObject", 4, 2, -1))
sketch8.addConstraint(Sketcher.Constraint("Horizontal", 3, 2, 6, 2))
sketch8.addConstraint(Sketcher.Constraint("Equal", 3, 5))
sketch8.addConstraint(Sketcher.Constraint("DistanceY", 0, 2, 0, 1, Q("5 mm")))
sketch8.addConstraint(Sketcher.Constraint("DistanceX", -1, 1, 0, 2, Q("30 mm")))
sketch8.addConstraint(Sketcher.Constraint("DistanceX", -1, 1, 5, 2, Q("310 mm")))
sketch8.addConstraint(Sketcher.Constraint("DistanceX", 1, 1, 1, 2, Q("93.333333 mm")))
pocket7 = doc.addObject("PartDesign::Pocket", "Pocket006")
body.addObject(pocket7)
pocket7.Profile = sketch8
pocket7.Length = 10

sketch9 = doc.addObject("Sketcher::SketchObject", "Sketch008")
body.addObject(sketch9)
sketch9.AttachmentSupport = (doc.XY_Plane, [""])
sketch9.MapMode = "FlatFace"
sketch9.AttachmentOffset = App.Placement(App.Vector(0, 0, 5), App.Rotation())
add_polygon(sketch9, [(74.2, 8.5), (74.2, 5), (79.2, 5), (79.2, 8.5), (80.7, 8.5), (80.7, 11.3), (79.2, 11.3), (79.2, 14), (74.2, 14), (74.2, 11.3), (72.7, 11.3), (72.7, 8.5)])
add_polygon(sketch9, [(260.8, 14), (260.8, 11.3), (259.3, 11.3), (259.3, 8.5), (260.8, 8.5), (260.8, 5), (265.8, 5), (265.8, 8.5), (267.3, 8.5), (267.3, 11.3), (265.8, 11.3), (265.8, 14)])
sketch9.addConstraint(Sketcher.Constraint("Vertical", 0))
sketch9.addConstraint(Sketcher.Constraint("Horizontal", 1))
sketch9.addConstraint(Sketcher.Constraint("Vertical", 2))
sketch9.addConstraint(Sketcher.Constraint("Horizontal", 3))
sketch9.addConstraint(Sketcher.Constraint("Vertical", 4))
sketch9.addConstraint(Sketcher.Constraint("Horizontal", 5))
sketch9.addConstraint(Sketcher.Constraint("Vertical", 6))
sketch9.addConstraint(Sketcher.Constraint("Horizontal", 7))
sketch9.addConstraint(Sketcher.Constraint("Vertical", 8))
sketch9.addConstraint(Sketcher.Constraint("Horizontal", 9))
sketch9.addConstraint(Sketcher.Constraint("Vertical", 10))
sketch9.addConstraint(Sketcher.Constraint("Horizontal", 11))
sketch9.addConstraint(Sketcher.Constraint("Vertical", 12))
sketch9.addConstraint(Sketcher.Constraint("Horizontal", 13))
sketch9.addConstraint(Sketcher.Constraint("Vertical", 14))
sketch9.addConstraint(Sketcher.Constraint("Horizontal", 15))
sketch9.addConstraint(Sketcher.Constraint("Vertical", 16))
sketch9.addConstraint(Sketcher.Constraint("Horizontal", 17))
sketch9.addConstraint(Sketcher.Constraint("Vertical", 18))
sketch9.addConstraint(Sketcher.Constraint("Horizontal", 19))
sketch9.addConstraint(Sketcher.Constraint("Vertical", 20))
sketch9.addConstraint(Sketcher.Constraint("Horizontal", 21))
sketch9.addConstraint(Sketcher.Constraint("Vertical", 22))
sketch9.addConstraint(Sketcher.Constraint("Horizontal", 23))
sketch9.addConstraint(Sketcher.Constraint("Horizontal", 5, 2, 8, 2))
sketch9.addConstraint(Sketcher.Constraint("Horizontal", 3, 2, 10, 2))
sketch9.addConstraint(Sketcher.Constraint("Horizontal", 9, 2, 12, 2))
sketch9.addConstraint(Sketcher.Constraint("Horizontal", 11, 2, 14, 2))
sketch9.addConstraint(Sketcher.Constraint("Horizontal", 1, 2, 16, 2))
sketch9.addConstraint(Sketcher.Constraint("Horizontal", 15, 2, 18, 2))
sketch9.addConstraint(Sketcher.Constraint("Horizontal", 13, 2, 20, 2))
sketch9.addConstraint(Sketcher.Constraint("Horizontal", 7, 2, 22, 2))
sketch9.addConstraint(Sketcher.Constraint("Vertical", 2, 2, 5, 2))
sketch9.addConstraint(Sketcher.Constraint("Vertical", 0, 2, 7, 2))
sketch9.addConstraint(Sketcher.Constraint("Vertical", 12, 2, 15, 2))
sketch9.addConstraint(Sketcher.Constraint("Vertical", 18, 2, 21, 2))
sketch9.addConstraint(Sketcher.Constraint("Equal", 5, 9))
sketch9.addConstraint(Sketcher.Constraint("Equal", 11, 13))
sketch9.addConstraint(Sketcher.Constraint("Equal", 7, 17))
sketch9.addConstraint(Sketcher.Constraint("Equal", 15, 19))
sketch9.addConstraint(Sketcher.Constraint("DistanceX", 1, 1, 1, 2, Q("5 mm")))
sketch9.addConstraint(Sketcher.Constraint("DistanceX", 3, 1, 3, 2, Q("1.5 mm")))
sketch9.addConstraint(Sketcher.Constraint("DistanceY", 0, 2, 0, 1, Q("3.5 mm")))
sketch9.addConstraint(Sketcher.Constraint("DistanceY", 4, 1, 4, 2, Q("2.8 mm")))
sketch9.addConstraint(Sketcher.Constraint("DistanceY", 6, 1, 6, 2, Q("2.7 mm")))
sketch9.addConstraint(Sketcher.Constraint("DistanceY", -1, 1, 0, 2, Q("5 mm")))
sketch9.addConstraint(Sketcher.Constraint("DistanceX", -1, 1, 0, 2, Q("74.166667 mm")))
sketch9.addConstraint(Sketcher.Constraint("DistanceX", -1, 1, 12, 2, Q("260.833333 mm")))
pocket8 = doc.addObject("PartDesign::Pocket", "Pocket007")
body.addObject(pocket8)
pocket8.Profile = sketch9
pocket8.Length = 5

sketch10 = doc.addObject("Sketcher::SketchObject", "Sketch009")
body.addObject(sketch10)
sketch10.AttachmentSupport = (doc.XY_Plane, [""])
sketch10.MapMode = "FlatFace"
sketch10.AttachmentOffset = App.Placement(App.Vector(0, 0, 5), App.Rotation())
add_polygon(sketch10, [(40, 39), (40, 22), (45, 22), (45, 39)])
add_polygon(sketch10, [(110, 39), (110, 22), (115, 22), (115, 39)])
add_polygon(sketch10, [(225, 39), (225, 22), (230, 22), (230, 39)])
add_polygon(sketch10, [(295, 39), (295, 22), (300, 22), (300, 39)])
sketch10.addConstraint(Sketcher.Constraint("Vertical", 0))
sketch10.addConstraint(Sketcher.Constraint("Horizontal", 1))
sketch10.addConstraint(Sketcher.Constraint("Vertical", 2))
sketch10.addConstraint(Sketcher.Constraint("Horizontal", 3))
sketch10.addConstraint(Sketcher.Constraint("Vertical", 4))
sketch10.addConstraint(Sketcher.Constraint("Horizontal", 5))
sketch10.addConstraint(Sketcher.Constraint("Vertical", 6))
sketch10.addConstraint(Sketcher.Constraint("Horizontal", 7))
sketch10.addConstraint(Sketcher.Constraint("Vertical", 8))
sketch10.addConstraint(Sketcher.Constraint("Horizontal", 9))
sketch10.addConstraint(Sketcher.Constraint("Vertical", 10))
sketch10.addConstraint(Sketcher.Constraint("Horizontal", 11))
sketch10.addConstraint(Sketcher.Constraint("Vertical", 12))
sketch10.addConstraint(Sketcher.Constraint("Horizontal", 13))
sketch10.addConstraint(Sketcher.Constraint("Vertical", 14))
sketch10.addConstraint(Sketcher.Constraint("Horizontal", 15))
sketch10.addConstraint(Sketcher.Constraint("Horizontal", 1, 2, 4, 2))
sketch10.addConstraint(Sketcher.Constraint("Horizontal", 3, 2, 6, 2))
sketch10.addConstraint(Sketcher.Constraint("Horizontal", 5, 2, 8, 2))
sketch10.addConstraint(Sketcher.Constraint("Horizontal", 7, 2, 10, 2))
sketch10.addConstraint(Sketcher.Constraint("Horizontal", 9, 2, 12, 2))
sketch10.addConstraint(Sketcher.Constraint("Horizontal", 11, 2, 14, 2))
sketch10.addConstraint(Sketcher.Constraint("Equal", 3, 5))
sketch10.addConstraint(Sketcher.Constraint("Equal", 7, 9))
sketch10.addConstraint(Sketcher.Constraint("Equal", 11, 13))
sketch10.addConstraint(Sketcher.Constraint("DistanceX", 1, 1, 1, 2, Q("5 mm")))
sketch10.addConstraint(Sketcher.Constraint("DistanceY", 0, 2, 0, 1, Q("17 mm")))
sketch10.addConstraint(Sketcher.Constraint("DistanceX", -1, 1, 0, 2, Q("40 mm")))
sketch10.addConstraint(Sketcher.Constraint("DistanceY", -1, 1, 0, 2, Q("22 mm")))
sketch10.addConstraint(Sketcher.Constraint("DistanceX", -1, 1, 4, 2, Q("110 mm")))
sketch10.addConstraint(Sketcher.Constraint("DistanceX", -1, 1, 8, 2, Q("225 mm")))
sketch10.addConstraint(Sketcher.Constraint("DistanceX", -1, 1, 12, 2, Q("295 mm")))
pocket9 = doc.addObject("PartDesign::Pocket", "Pocket008")
body.addObject(pocket9)
pocket9.Profile = sketch10
pocket9.Length = 5

sketch11 = doc.addObject("Sketcher::SketchObject", "Sketch010")
body.addObject(sketch11)
sketch11.AttachmentSupport = (doc.XY_Plane, [""])
sketch11.MapMode = "FlatFace"
sketch11.AttachmentOffset = App.Placement(App.Vector(0, 0, 5), App.Rotation())
sketch11.addGeometry(Part.Circle(App.Vector(155, 25, 0), App.Vector(0, 0, 1), 2.5), False)
sketch11.addGeometry(Part.Circle(App.Vector(185, 25, 0), App.Vector(0, 0, 1), 2.5), False)
sketch11.addConstraint(Sketcher.Constraint("Equal", 0, 1))
sketch11.addConstraint(Sketcher.Constraint("Horizontal", 0, 3, 1, 3))
sketch11.addConstraint(Sketcher.Constraint("Diameter", 0, Q("5 mm")))
sketch11.addConstraint(Sketcher.Constraint("DistanceX", -1, 1, 0, 3, Q("155 mm")))
sketch11.addConstraint(Sketcher.Constraint("DistanceY", -1, 1, 0, 3, Q("25 mm")))
sketch11.addConstraint(Sketcher.Constraint("DistanceX", -1, 1, 1, 3, Q("185 mm")))
pocket10 = doc.addObject("PartDesign::Pocket", "Pocket009")
body.addObject(pocket10)
pocket10.Profile = sketch11
pocket10.Length = 10

doc.recompute()
